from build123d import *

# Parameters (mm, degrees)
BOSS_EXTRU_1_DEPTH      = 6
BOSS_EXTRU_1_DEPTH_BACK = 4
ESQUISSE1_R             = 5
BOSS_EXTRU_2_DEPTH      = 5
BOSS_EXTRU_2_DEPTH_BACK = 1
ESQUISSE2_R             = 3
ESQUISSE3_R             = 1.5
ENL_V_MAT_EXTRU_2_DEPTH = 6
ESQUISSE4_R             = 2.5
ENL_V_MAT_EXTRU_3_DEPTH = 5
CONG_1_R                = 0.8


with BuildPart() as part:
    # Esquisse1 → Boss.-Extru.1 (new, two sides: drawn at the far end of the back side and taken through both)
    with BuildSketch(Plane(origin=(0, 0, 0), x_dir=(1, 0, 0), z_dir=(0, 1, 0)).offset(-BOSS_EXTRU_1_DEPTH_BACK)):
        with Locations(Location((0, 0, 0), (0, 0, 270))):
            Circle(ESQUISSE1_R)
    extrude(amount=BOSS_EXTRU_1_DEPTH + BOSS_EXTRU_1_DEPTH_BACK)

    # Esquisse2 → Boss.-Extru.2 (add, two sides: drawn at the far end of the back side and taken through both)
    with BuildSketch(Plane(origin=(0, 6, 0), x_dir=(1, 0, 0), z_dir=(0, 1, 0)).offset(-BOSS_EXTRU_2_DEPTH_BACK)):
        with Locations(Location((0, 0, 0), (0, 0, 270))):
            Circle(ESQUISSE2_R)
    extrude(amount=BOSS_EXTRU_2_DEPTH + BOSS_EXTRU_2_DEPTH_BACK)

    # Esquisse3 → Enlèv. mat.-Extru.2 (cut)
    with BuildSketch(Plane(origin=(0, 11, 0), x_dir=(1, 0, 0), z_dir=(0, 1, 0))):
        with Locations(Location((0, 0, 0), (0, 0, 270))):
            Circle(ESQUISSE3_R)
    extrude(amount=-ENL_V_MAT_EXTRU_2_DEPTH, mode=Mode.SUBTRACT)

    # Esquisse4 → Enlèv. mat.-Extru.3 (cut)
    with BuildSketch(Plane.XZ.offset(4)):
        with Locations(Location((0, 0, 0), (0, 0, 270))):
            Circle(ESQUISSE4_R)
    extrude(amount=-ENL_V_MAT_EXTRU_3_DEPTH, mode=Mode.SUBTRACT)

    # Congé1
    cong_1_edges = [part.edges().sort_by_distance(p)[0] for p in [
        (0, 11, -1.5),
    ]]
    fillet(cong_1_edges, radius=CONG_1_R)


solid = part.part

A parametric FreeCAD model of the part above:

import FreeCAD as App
import Part
import Sketcher
Q = App.Units.Quantity


def edges_at(feature, points):
    """Names of the edges that pass closest to the given points."""
    edges = feature.Shape.Edges
    near = lambda p: min(range(len(edges)), key=lambda i: edges[i].distToShape(Part.Vertex(*p))[0])
    return sorted({f"Edge{near(p) + 1}" for p in points})

doc = App.newDocument("Part")
body = doc.addObject("PartDesign::Body", "Body")

sketch1 = body.newObject("Sketcher::SketchObject", "Sketch")
sketch1.AttachmentSupport = (doc.getObject("XZ_Plane"), [""])
sketch1.MapMode = "FlatFace"
sketch1.addGeometry(Part.Circle(App.Vector(0, 0, 0), App.Vector(0, 0, 1), 5), False)
sketch1.addConstraint([
    Sketcher.Constraint("Coincident", 0, 3, -1, 1),
    Sketcher.Constraint("Diameter", 0, Q("10 mm")),
])
pad1 = body.newObject("PartDesign::Pad", "Pad")
pad1.Profile = sketch1
pad1.Type = "TwoLengths"
pad1.Length = 6
pad1.Length2 = 4
pad1.Reversed = True

sketch2 = body.newObject("Sketcher::SketchObject", "Sketch001")
sketch2.AttachmentSupport = (doc.getObject("XZ_Plane"), [""])
sketch2.MapMode = "FlatFace"
sketch2.AttachmentOffset = App.Placement(App.Vector(0, 0, -6), App.Rotation())
sketch2.addGeometry(Part.Circle(App.Vector(0, 0, 0), App.Vector(0, 0, 1), 3), False)
sketch2.addConstraint([
    Sketcher.Constraint("Coincident", 0, 3, -1, 1),
    Sketcher.Constraint("Diameter", 0, Q("6 mm")),
])
pad2 = body.newObject("PartDesign::Pad", "Pad001")
pad2.Profile = sketch2
pad2.Type = "TwoLengths"
pad2.Length = 5
pad2.Length2 = 1
pad2.Reversed = True

sketch3 = body.newObject("Sketcher::SketchObject", "Sketch002")
sketch3.AttachmentSupport = (doc.getObject("XZ_Plane"), [""])
sketch3.MapMode = "FlatFace"
sketch3.AttachmentOffset = App.Placement(App.Vector(0, 0, -11), App.Rotation())
sketch3.addGeometry(Part.Circle(App.Vector(0, 0, 0), App.Vector(0, 0, 1), 1.5), False)
sketch3.addConstraint([
    Sketcher.Constraint("Coincident", 0, 3, -1, 1),
    Sketcher.Constraint("Diameter", 0, Q("3 mm")),
])
pocket1 = body.newObject("PartDesign::Pocket", "Pocket")
pocket1.Profile = sketch3
pocket1.Length = 6
pocket1.Reversed = True

sketch4 = body.newObject("Sketcher::SketchObject", "Sketch003")
sketch4.AttachmentSupport = (doc.getObject("XZ_Plane"), [""])
sketch4.MapMode = "FlatFace"
sketch4.AttachmentOffset = App.Placement(App.Vector(0, 0, 4), App.Rotation())
sketch4.addGeometry(Part.Circle(App.Vector(0, 0, 0), App.Vector(0, 0, 1), 2.5), False)
sketch4.addConstraint([
    Sketcher.Constraint("Coincident", 0, 3, -1, 1),
    Sketcher.Constraint("Diameter", 0, Q("5 mm")),
])
pocket2 = body.newObject("PartDesign::Pocket", "Pocket001")
pocket2.Profile = sketch4
pocket2.Length = 5
doc.recompute()

fillet = body.newObject("PartDesign::Fillet", "Fillet")
fillet.Base = (pocket2, edges_at(pocket2, [(0, 11, -1.5)]))
fillet.Radius = 0.8

doc.recompute()
